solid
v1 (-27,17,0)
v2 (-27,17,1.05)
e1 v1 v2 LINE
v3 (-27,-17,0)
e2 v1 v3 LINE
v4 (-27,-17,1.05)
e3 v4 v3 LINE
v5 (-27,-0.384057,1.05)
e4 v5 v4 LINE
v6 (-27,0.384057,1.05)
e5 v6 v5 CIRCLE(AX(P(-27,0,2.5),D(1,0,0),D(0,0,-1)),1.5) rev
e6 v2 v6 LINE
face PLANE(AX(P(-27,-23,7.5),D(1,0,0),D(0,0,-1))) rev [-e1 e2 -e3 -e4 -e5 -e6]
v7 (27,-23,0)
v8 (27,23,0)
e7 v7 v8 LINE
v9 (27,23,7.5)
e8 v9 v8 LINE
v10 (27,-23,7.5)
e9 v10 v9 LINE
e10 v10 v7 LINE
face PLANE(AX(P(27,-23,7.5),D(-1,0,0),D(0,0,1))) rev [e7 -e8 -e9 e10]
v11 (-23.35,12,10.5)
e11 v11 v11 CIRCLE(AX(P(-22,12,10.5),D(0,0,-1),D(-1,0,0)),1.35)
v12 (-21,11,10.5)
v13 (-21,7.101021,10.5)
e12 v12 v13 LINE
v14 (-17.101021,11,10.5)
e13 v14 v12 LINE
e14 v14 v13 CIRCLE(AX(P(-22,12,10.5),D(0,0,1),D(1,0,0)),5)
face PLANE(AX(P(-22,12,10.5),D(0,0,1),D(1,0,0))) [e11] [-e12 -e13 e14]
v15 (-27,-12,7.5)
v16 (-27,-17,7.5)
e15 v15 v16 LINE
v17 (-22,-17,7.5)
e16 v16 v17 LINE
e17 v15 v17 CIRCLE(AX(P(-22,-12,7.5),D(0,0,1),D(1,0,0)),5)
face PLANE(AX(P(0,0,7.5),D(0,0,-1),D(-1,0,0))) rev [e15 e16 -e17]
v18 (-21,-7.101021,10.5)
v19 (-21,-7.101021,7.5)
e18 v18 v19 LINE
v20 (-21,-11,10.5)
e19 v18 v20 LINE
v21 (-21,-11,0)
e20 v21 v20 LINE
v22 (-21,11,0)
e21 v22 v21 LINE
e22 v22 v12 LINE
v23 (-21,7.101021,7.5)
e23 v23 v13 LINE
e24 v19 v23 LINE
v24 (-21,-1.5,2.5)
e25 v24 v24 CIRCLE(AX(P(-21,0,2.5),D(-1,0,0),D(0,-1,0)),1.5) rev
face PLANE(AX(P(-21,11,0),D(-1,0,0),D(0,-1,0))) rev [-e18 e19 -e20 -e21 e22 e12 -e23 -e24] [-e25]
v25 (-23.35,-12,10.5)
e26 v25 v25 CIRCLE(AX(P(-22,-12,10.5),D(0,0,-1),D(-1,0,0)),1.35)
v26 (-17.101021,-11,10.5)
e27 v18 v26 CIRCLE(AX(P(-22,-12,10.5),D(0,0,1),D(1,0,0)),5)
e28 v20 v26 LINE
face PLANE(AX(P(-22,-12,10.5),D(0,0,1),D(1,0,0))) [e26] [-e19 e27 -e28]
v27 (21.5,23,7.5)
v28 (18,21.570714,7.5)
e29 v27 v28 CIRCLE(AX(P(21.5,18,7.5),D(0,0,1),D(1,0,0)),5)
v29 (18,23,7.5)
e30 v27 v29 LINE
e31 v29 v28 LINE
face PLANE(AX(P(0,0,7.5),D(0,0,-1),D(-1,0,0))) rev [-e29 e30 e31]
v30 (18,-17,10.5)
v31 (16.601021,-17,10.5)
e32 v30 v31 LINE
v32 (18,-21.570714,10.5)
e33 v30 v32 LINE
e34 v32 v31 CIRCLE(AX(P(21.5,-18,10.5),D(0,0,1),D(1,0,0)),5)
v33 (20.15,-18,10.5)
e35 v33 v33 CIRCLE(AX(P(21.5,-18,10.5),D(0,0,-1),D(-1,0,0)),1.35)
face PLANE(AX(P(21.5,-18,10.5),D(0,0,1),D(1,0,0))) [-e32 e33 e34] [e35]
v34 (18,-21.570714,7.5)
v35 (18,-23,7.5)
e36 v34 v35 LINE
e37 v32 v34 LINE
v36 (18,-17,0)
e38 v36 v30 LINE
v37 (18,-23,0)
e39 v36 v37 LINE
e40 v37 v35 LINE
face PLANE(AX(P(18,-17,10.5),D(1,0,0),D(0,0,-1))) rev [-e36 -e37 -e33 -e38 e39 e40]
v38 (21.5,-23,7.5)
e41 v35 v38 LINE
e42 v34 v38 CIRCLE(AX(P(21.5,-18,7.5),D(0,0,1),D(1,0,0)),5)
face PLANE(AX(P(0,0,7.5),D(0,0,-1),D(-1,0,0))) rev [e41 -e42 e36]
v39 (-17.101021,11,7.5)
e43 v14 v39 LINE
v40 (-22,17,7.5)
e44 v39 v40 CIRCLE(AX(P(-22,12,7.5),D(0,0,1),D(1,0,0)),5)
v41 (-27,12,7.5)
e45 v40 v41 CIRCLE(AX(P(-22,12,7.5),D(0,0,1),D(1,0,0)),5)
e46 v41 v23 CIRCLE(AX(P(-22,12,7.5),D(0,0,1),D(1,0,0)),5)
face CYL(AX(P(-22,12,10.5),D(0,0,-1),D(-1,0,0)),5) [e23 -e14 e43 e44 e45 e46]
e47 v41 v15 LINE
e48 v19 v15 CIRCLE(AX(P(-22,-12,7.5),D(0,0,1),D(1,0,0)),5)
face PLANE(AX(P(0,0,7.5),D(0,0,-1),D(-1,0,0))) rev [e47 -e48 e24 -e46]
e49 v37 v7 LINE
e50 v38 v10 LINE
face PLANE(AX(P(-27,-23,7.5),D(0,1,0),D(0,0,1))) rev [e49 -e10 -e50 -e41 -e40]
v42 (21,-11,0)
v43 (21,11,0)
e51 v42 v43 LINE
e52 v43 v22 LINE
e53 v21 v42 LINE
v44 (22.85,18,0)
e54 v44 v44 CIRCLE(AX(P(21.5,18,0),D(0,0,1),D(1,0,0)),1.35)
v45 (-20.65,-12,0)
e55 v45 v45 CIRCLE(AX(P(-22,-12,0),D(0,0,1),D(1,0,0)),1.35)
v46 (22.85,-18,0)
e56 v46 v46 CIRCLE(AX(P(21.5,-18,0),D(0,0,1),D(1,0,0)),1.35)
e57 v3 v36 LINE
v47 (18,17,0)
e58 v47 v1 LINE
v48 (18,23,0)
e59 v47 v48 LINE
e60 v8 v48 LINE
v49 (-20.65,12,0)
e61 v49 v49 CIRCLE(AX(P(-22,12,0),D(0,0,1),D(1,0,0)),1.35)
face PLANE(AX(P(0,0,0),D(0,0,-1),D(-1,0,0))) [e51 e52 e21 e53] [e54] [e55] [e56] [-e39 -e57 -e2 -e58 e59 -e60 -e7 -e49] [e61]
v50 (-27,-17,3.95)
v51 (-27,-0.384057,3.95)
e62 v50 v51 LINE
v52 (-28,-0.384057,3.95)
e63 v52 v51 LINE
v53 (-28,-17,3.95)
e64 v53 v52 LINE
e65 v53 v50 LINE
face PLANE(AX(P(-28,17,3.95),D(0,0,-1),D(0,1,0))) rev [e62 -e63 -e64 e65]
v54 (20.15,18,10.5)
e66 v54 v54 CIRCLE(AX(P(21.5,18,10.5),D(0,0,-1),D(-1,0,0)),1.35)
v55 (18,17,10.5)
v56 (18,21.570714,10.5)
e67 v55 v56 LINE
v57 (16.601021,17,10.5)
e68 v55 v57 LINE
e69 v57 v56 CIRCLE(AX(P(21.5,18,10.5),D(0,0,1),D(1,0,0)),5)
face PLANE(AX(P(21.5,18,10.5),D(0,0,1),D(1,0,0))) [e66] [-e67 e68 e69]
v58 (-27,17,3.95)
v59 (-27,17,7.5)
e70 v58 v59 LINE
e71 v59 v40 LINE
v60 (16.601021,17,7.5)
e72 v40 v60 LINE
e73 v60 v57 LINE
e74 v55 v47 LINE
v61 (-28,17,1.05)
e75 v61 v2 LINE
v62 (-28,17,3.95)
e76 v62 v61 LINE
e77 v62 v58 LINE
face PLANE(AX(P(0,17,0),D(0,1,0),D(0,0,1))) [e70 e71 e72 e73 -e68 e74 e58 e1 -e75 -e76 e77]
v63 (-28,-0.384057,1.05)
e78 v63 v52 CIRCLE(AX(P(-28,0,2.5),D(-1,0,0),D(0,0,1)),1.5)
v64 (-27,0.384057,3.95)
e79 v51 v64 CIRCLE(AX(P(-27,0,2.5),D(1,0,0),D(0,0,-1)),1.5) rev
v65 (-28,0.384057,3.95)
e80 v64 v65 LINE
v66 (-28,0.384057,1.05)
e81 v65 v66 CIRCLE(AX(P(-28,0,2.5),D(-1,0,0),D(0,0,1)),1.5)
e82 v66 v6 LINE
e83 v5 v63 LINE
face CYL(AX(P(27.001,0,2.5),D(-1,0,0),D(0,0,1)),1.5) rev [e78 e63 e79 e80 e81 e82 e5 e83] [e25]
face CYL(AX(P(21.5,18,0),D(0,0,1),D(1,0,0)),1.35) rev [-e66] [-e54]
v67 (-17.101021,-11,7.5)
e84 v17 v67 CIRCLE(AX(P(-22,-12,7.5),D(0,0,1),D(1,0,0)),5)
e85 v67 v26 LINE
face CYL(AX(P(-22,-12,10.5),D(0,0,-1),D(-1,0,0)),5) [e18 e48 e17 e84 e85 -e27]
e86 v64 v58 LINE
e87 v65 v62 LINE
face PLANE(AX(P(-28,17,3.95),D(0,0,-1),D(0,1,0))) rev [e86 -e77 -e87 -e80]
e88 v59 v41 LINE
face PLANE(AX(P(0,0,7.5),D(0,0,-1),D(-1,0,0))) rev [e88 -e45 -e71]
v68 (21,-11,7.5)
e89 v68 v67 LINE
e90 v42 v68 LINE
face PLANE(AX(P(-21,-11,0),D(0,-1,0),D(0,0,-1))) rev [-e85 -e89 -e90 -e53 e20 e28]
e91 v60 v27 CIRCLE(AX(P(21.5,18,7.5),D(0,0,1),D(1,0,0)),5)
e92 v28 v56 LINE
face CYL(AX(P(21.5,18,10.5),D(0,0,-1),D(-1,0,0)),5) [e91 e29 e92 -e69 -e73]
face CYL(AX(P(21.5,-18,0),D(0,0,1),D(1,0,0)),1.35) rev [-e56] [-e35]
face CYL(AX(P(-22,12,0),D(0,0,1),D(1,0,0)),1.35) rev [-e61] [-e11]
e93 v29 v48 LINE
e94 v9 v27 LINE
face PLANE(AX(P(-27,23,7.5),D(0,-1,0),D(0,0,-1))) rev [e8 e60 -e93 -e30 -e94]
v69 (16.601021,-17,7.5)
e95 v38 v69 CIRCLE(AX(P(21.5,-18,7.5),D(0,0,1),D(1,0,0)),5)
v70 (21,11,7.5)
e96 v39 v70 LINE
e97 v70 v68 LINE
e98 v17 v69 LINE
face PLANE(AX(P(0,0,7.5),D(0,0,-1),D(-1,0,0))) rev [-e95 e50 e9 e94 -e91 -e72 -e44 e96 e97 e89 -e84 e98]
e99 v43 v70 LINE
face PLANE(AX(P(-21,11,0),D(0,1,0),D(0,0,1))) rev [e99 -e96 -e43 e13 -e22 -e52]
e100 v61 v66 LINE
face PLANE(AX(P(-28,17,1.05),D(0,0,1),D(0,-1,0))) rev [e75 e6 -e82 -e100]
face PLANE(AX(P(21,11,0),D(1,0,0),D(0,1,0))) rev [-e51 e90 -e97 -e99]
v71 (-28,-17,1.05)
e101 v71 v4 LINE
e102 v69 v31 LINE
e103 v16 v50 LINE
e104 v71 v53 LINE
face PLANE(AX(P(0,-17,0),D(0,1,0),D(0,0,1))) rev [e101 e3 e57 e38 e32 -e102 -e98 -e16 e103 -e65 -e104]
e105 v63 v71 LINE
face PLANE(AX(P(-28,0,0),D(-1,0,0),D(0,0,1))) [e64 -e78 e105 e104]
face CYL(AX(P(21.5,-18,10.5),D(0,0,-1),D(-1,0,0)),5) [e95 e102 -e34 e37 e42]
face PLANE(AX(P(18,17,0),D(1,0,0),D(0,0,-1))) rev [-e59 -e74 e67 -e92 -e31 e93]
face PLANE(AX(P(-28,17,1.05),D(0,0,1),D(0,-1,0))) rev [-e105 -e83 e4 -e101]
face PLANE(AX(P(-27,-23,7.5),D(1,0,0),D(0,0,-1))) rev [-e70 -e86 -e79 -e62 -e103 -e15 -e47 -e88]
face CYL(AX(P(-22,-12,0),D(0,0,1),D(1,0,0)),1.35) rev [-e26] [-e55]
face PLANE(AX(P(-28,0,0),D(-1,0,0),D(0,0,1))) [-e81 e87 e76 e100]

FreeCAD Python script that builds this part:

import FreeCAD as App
import Part
import Sketcher
Q = App.Units.Quantity


def add_polygon(sketch, points):
    """Adds a closed chain of lines whose ends are joined by coincident constraints."""
    first, n = sketch.GeometryCount, len(points)
    for a, b in zip(points, points[1:] + points[:1]):
        sketch.addGeometry(Part.LineSegment(App.Vector(*a, 0), App.Vector(*b, 0)), False)
    for i in range(n):
        sketch.addConstraint(Sketcher.Constraint("Coincident", first + i, 2, first + (i + 1) % n, 1))

doc = App.newDocument("Part")
body = doc.addObject("PartDesign::Body", "Body")

sketch1 = body.newObject("Sketcher::SketchObject", "Sketch")
sketch1.AttachmentSupport = (doc.getObject("XY_Plane"), [""])
sketch1.MapMode = "FlatFace"
add_polygon(sketch1, [(-27, 23), (-27, -23), (27, -23), (27, 23)])
sketch1.addConstraint(Sketcher.Constraint("Vertical", 0))
sketch1.addConstraint(Sketcher.Constraint("Horizontal", 1))
sketch1.addConstraint(Sketcher.Constraint("Vertical", 2))
sketch1.addConstraint(Sketcher.Constraint("Horizontal", 3))
sketch1.addConstraint(Sketcher.Constraint("Symmetric", 0, 2, 2, 2, -1, 1))
sketch1.addConstraint(Sketcher.Constraint("DistanceX", 1, 1, 1, 2, Q("54 mm")))
sketch1.addConstraint(Sketcher.Constraint("DistanceY", 0, 2, 0, 1, Q("46 mm")))
pad1 = body.newObject("PartDesign::Pad", "Pad")
pad1.Profile = sketch1
pad1.Length = 7.5

sketch2 = body.newObject("Sketcher::SketchObject", "Sketch001")
sketch2.AttachmentSupport = (doc.getObject("XY_Plane"), [""])
sketch2.MapMode = "FlatFace"
sketch2.AttachmentOffset = App.Placement(App.Vector(0, 0, 7.5), App.Rotation())
sketch2.addGeometry(Part.Circle(App.Vector(-22, -12, 0), App.Vector(0, 0, 1), 1.4), False)
sketch2.addGeometry(Part.Circle(App.Vector(-22, 12, 0), App.Vector(0, 0, 1), 1.4), False)
sketch2.addGeometry(Part.Circle(App.Vector(21.5, 18, 0), App.Vector(0, 0, 1), 1.4), False)
sketch2.addGeometry(Part.Circle(App.Vector(21.5, -18, 0), App.Vector(0, 0, 1), 1.4), False)
sketch2.addConstraint(Sketcher.Constraint("Equal", 0, 1))
sketch2.addConstraint(Sketcher.Constraint("Equal", 1, 2))
sketch2.addConstraint(Sketcher.Constraint("Equal", 2, 3))
sketch2.addConstraint(Sketcher.Constraint("Symmetric", 0, 3, 1, 3, -1))
sketch2.addConstraint(Sketcher.Constraint("Symmetric", 2, 3, 3, 3, -1))
sketch2.addConstraint(Sketcher.Constraint("Diameter", 0, Q("2.7 mm")))
sketch2.addConstraint(Sketcher.Constraint("DistanceX", 0, 3, -1, 1, Q("22 mm")))
sketch2.addConstraint(Sketcher.Constraint("DistanceY", 0, 3, -1, 1, Q("12 mm")))
sketch2.addConstraint(Sketcher.Constraint("DistanceY", -1, 1, 2, 3, Q("18 mm")))
sketch2.addConstraint(Sketcher.Constraint("DistanceX", -1, 1, 2, 3, Q("21.5 mm")))
pocket1 = body.newObject("PartDesign::Pocket", "Pocket")
pocket1.Profile = sketch2
pocket1.Type = "ThroughAll"

sketch3 = body.newObject("Sketcher::SketchObject", "Sketch002")
sketch3.AttachmentSupport = (doc.getObject("XY_Plane"), [""])
sketch3.MapMode = "FlatFace"
sketch3.AttachmentOffset = App.Placement(App.Vector(0, 0, 7.5), App.Rotation())
sketch3.addGeometry(Part.Circle(App.Vector(-22, 12, 0), App.Vector(0, 0, 1), 5), False)
sketch3.addGeometry(Part.Circle(App.Vector(-22, -12, 0), App.Vector(0, 0, 1), 5), False)
sketch3.addGeometry(Part.Circle(App.Vector(22, -18, 0), App.Vector(0, 0, 1), 5), False)
sketch3.addGeometry(Part.Circle(App.Vector(22, 18, 0), App.Vector(0, 0, 1), 5), False)
sketch3.addConstraint(Sketcher.Constraint("Equal", 0, 1))
sketch3.addConstraint(Sketcher.Constraint("Equal", 1, 2))
sketch3.addConstraint(Sketcher.Constraint("Equal", 2, 3))
sketch3.addConstraint(Sketcher.Constraint("Symmetric", 0, 3, 1, 3, -1))
sketch3.addConstraint(Sketcher.Constraint("Symmetric", 2, 3, 3, 3, -1))
sketch3.addConstraint(Sketcher.Constraint("Diameter", 0, Q("10 mm")))
sketch3.addConstraint(Sketcher.Constraint("DistanceX", 0, 3, -1, 1, Q("22 mm")))
sketch3.addConstraint(Sketcher.Constraint("DistanceY", -1, 1, 0, 3, Q("12 mm")))
sketch3.addConstraint(Sketcher.Constraint("DistanceY", 2, 3, -1, 1, Q("18 mm")))
sketch3.addConstraint(Sketcher.Constraint("DistanceX", -1, 1, 2, 3, Q("21.5 mm")))
pad2 = body.newObject("PartDesign::Pad", "Pad001")
pad2.Profile = sketch3
pad2.Length = 3

sketch4 = body.newObject("Sketcher::SketchObject", "Sketch003")
sketch4.AttachmentSupport = (doc.getObject("XZ_Plane"), [""])
sketch4.MapMode = "FlatFace"
sketch4.AttachmentOffset = App.Placement(App.Vector(0, 0, 23), App.Rotation())
add_polygon(sketch4, [(-27, 10), (-27, 0), (18, 0), (18, 10)])
sketch4.addConstraint(Sketcher.Constraint("Vertical", 0))
sketch4.addConstraint(Sketcher.Constraint("Horizontal", 1))
sketch4.addConstraint(Sketcher.Constraint("Vertical", 2))
sketch4.addConstraint(Sketcher.Constraint("Horizontal", 3))
sketch4.addConstraint(Sketcher.Constraint("PointOnObject", 0, 2, -1))
sketch4.addConstraint(Sketcher.Constraint("DistanceX", 1, 1, 1, 2, Q("45 mm")))
sketch4.addConstraint(Sketcher.Constraint("DistanceY", 0, 2, 0, 1, Q("10.5 mm")))
sketch4.addConstraint(Sketcher.Constraint("DistanceX", 0, 2, -1, 1, Q("27 mm")))
pocket2 = body.newObject("PartDesign::Pocket", "Pocket001")
pocket2.Profile = sketch4
pocket2.Length = 6

sketch5 = body.newObject("Sketcher::SketchObject", "Sketch004")
sketch5.AttachmentSupport = (doc.getObject("XZ_Plane"), [""])
sketch5.MapMode = "FlatFace"
sketch5.AttachmentOffset = App.Placement(App.Vector(0, 0, -23), App.Rotation())
add_polygon(sketch5, [(-27, 0), (-27, 10), (18, 10), (18, 0)])
sketch5.addConstraint(Sketcher.Constraint("Vertical", 0))
sketch5.addConstraint(Sketcher.Constraint("Horizontal", 1))
sketch5.addConstraint(Sketcher.Constraint("Vertical", 2))
sketch5.addConstraint(Sketcher.Constraint("Horizontal", 3))
sketch5.addConstraint(Sketcher.Constraint("PointOnObject", 2, 2, -1))
sketch5.addConstraint(Sketcher.Constraint("DistanceX", 1, 1, 1, 2, Q("45 mm")))
sketch5.addConstraint(Sketcher.Constraint("DistanceY", 0, 1, 0, 2, Q("10.5 mm")))
sketch5.addConstraint(Sketcher.Constraint("DistanceX", 0, 2, -1, 1, Q("27 mm")))
pocket3 = body.newObject("PartDesign::Pocket", "Pocket002")
pocket3.Profile = sketch5
pocket3.Length = 6
pocket3.Reversed = True

sketch6 = body.newObject("Sketcher::SketchObject", "Sketch005")
sketch6.AttachmentSupport = (doc.getObject("YZ_Plane"), [""])
sketch6.MapMode = "FlatFace"
sketch6.AttachmentOffset = App.Placement(App.Vector(0, 0, -27), App.Rotation())
add_polygon(sketch6, [(17, 1.1), (-17, 1.1), (-17, 4), (17, 4)])
sketch6.addConstraint(Sketcher.Constraint("Horizontal", 0))
sketch6.addConstraint(Sketcher.Constraint("Vertical", 1))
sketch6.addConstraint(Sketcher.Constraint("Horizontal", 2))
sketch6.addConstraint(Sketcher.Constraint("Vertical", 3))
sketch6.addConstraint(Sketcher.Constraint("DistanceX", 0, 2, 0, 1, Q("34 mm")))
sketch6.addConstraint(Sketcher.Constraint("DistanceY", 1, 1, 1, 2, Q("2.9 mm")))
sketch6.addConstraint(Sketcher.Constraint("DistanceX", 0, 2, -1, 1, Q("17 mm")))
sketch6.addConstraint(Sketcher.Constraint("DistanceY", -1, 1, 0, 2, Q("1.05 mm")))
pad3 = body.newObject("PartDesign::Pad", "Pad002")
pad3.Profile = sketch6
pad3.Length = 1
pad3.Reversed = True

sketch7 = body.newObject("Sketcher::SketchObject", "Sketch006")
sketch7.AttachmentSupport = (doc.getObject("XY_Plane"), [""])
sketch7.MapMode = "FlatFace"
sketch7.AttachmentOffset = App.Placement(App.Vector(0, 0, 10.5), App.Rotation())
add_polygon(sketch7, [(-21, 11), (-21, -11), (21, -11), (21, 11)])
sketch7.addConstraint(Sketcher.Constraint("Vertical", 0))
sketch7.addConstraint(Sketcher.Constraint("Horizontal", 1))
sketch7.addConstraint(Sketcher.Constraint("Vertical", 2))
sketch7.addConstraint(Sketcher.Constraint("Horizontal", 3))
sketch7.addConstraint(Sketcher.Constraint("Symmetric", 0, 2, 2, 2, -1, 1))
sketch7.addConstraint(Sketcher.Constraint("DistanceX", 1, 1, 1, 2, Q("42 mm")))
sketch7.addConstraint(Sketcher.Constraint("DistanceY", 0, 2, 0, 1, Q("22 mm")))
pocket4 = body.newObject("PartDesign::Pocket", "Pocket003")
pocket4.Profile = sketch7
pocket4.Type = "ThroughAll"
pocket4.Midplane = True

sketch8 = body.newObject("Sketcher::SketchObject", "Sketch007")
sketch8.AttachmentSupport = (doc.getObject("YZ_Plane"), [""])
sketch8.MapMode = "FlatFace"
sketch8.AttachmentOffset = App.Placement(App.Vector(0, 0, -28), App.Rotation())
sketch8.addGeometry(Part.Circle(App.Vector(0, 2.5, 0), App.Vector(0, 0, 1), 1.5), False)
sketch8.addConstraint(Sketcher.Constraint("PointOnObject", 0, 3, -2))
sketch8.addConstraint(Sketcher.Constraint("Diameter", 0, Q("3 mm")))
sketch8.addConstraint(Sketcher.Constraint("DistanceY", -1, 1, 0, 3, Q("2.5 mm")))
pocket5 = body.newObject("PartDesign::Pocket", "Pocket004")
pocket5.Profile = sketch8
pocket5.Type = "UpToFirst"
pocket5.Reversed = True

sketch9 = body.newObject("Sketcher::SketchObject", "Sketch008")
sketch9.AttachmentSupport = (doc.getObject("XY_Plane"), [""])
sketch9.MapMode = "FlatFace"
sketch9.AttachmentOffset = App.Placement(App.Vector(0, 0, 7.5), App.Rotation())
sketch9.addGeometry(Part.Circle(App.Vector(21.5, 18, 0), App.Vector(0, 0, 1), 1.4), False)
sketch9.addGeometry(Part.Circle(App.Vector(-22, 12, 0), App.Vector(0, 0, 1), 1.4), False)
sketch9.addGeometry(Part.Circle(App.Vector(-22, -12, 0), App.Vector(0, 0, 1), 1.4), False)
sketch9.addGeometry(Part.Circle(App.Vector(21.5, -18, 0), App.Vector(0, 0, 1), 1.4), False)
sketch9.addConstraint(Sketcher.Constraint("Equal", 0, 1))
sketch9.addConstraint(Sketcher.Constraint("Equal", 1, 2))
sketch9.addConstraint(Sketcher.Constraint("Equal", 2, 3))
sketch9.addConstraint(Sketcher.Constraint("Symmetric", 1, 3, 2, 3, -1))
sketch9.addConstraint(Sketcher.Constraint("Symmetric", 0, 3, 3, 3, -1))
sketch9.addConstraint(Sketcher.Constraint("Diameter", 0, Q("2.7 mm")))
sketch9.addConstraint(Sketcher.Constraint("DistanceY", -1, 1, 0, 3, Q("18 mm")))
sketch9.addConstraint(Sketcher.Constraint("DistanceX", 1, 3, -1, 1, Q("22 mm")))
sketch9.addConstraint(Sketcher.Constraint("DistanceY", -1, 1, 1, 3, Q("12 mm")))
sketch9.addConstraint(Sketcher.Constraint("DistanceX", -1, 1, 0, 3, Q("21.5 mm")))
pocket6 = body.newObject("PartDesign::Pocket", "Pocket005")
pocket6.Profile = sketch9
pocket6.Type = "ThroughAll"
pocket6.Reversed = True

doc.recompute()
